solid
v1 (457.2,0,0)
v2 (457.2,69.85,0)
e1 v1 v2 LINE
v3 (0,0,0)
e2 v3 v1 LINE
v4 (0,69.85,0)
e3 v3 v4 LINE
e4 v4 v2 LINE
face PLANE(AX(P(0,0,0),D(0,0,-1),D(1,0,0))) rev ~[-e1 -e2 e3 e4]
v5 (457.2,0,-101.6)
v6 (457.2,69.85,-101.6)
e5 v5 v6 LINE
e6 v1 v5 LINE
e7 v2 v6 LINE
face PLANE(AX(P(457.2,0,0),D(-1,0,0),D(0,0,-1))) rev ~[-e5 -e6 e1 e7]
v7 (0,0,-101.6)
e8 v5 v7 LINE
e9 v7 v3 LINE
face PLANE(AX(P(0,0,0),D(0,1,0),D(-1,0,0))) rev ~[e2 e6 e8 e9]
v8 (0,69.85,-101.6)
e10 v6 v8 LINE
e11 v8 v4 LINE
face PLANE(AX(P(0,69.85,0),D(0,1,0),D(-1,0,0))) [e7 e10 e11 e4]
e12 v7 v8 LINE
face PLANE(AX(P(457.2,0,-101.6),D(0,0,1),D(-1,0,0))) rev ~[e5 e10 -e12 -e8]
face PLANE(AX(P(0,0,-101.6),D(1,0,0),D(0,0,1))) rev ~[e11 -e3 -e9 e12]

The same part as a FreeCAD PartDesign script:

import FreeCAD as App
import Part
import Sketcher

V = App.Vector
Q = App.Units.Quantity

doc = App.newDocument("Part")
params = doc.addObject("Spreadsheet::Sheet", "Params")
for row, (alias, value) in enumerate([
    ("sketch1_width", "18 in"),
    ("sketch1_height", "4 in"),
    ("pad1_length", "2.75 in"),
], start=1):
    params.set(f"A{row}", alias)
    params.set(f"B{row}", "=" + value)
    params.setAlias(f"B{row}", alias)

body = doc.addObject("PartDesign::Body", "Body")

# Sketch on XZ plane
sketch1 = body.newObject("Sketcher::SketchObject", "Sketch")
sketch1.AttachmentSupport = (doc.getObject("XZ_Plane"), [""])
sketch1.MapMode = "FlatFace"
sketch1.addGeometry(Part.LineSegment(V(0, -102, 0), V(0, 0, 0)), False)
sketch1.addGeometry(Part.LineSegment(V(0, 0, 0), V(457, 0, 0)), False)
sketch1.addGeometry(Part.LineSegment(V(457, 0, 0), V(457, -102, 0)), False)
sketch1.addGeometry(Part.LineSegment(V(457, -102, 0), V(0, -102, 0)), False)
sketch1.addConstraint(Sketcher.Constraint("Coincident", 0, 2, 1, 1))
sketch1.addConstraint(Sketcher.Constraint("Coincident", 1, 2, 2, 1))
sketch1.addConstraint(Sketcher.Constraint("Coincident", 2, 2, 3, 1))
sketch1.addConstraint(Sketcher.Constraint("Coincident", 3, 2, 0, 1))
sketch1.addConstraint(Sketcher.Constraint("Vertical", 0))
sketch1.addConstraint(Sketcher.Constraint("Horizontal", 1))
sketch1.addConstraint(Sketcher.Constraint("Vertical", 2))
sketch1.addConstraint(Sketcher.Constraint("Horizontal", 3))
sketch1.addConstraint(Sketcher.Constraint("Coincident", 0, 2, -1, 1))
sketch1.addConstraint(Sketcher.Constraint("DistanceX", 1, 1, 1, 2, Q("18 in")))
sketch1.addConstraint(Sketcher.Constraint("DistanceY", 0, 1, 0, 2, Q("4 in")))
sketch1.setExpression("Constraints[9]", "Params.sketch1_width")
sketch1.setExpression("Constraints[10]", "Params.sketch1_height")
pad1 = body.newObject("PartDesign::Pad", "Pad")
pad1.Profile = sketch1
pad1.setExpression("Length", "Params.pad1_length")
pad1.Reversed = True

doc.recompute()
